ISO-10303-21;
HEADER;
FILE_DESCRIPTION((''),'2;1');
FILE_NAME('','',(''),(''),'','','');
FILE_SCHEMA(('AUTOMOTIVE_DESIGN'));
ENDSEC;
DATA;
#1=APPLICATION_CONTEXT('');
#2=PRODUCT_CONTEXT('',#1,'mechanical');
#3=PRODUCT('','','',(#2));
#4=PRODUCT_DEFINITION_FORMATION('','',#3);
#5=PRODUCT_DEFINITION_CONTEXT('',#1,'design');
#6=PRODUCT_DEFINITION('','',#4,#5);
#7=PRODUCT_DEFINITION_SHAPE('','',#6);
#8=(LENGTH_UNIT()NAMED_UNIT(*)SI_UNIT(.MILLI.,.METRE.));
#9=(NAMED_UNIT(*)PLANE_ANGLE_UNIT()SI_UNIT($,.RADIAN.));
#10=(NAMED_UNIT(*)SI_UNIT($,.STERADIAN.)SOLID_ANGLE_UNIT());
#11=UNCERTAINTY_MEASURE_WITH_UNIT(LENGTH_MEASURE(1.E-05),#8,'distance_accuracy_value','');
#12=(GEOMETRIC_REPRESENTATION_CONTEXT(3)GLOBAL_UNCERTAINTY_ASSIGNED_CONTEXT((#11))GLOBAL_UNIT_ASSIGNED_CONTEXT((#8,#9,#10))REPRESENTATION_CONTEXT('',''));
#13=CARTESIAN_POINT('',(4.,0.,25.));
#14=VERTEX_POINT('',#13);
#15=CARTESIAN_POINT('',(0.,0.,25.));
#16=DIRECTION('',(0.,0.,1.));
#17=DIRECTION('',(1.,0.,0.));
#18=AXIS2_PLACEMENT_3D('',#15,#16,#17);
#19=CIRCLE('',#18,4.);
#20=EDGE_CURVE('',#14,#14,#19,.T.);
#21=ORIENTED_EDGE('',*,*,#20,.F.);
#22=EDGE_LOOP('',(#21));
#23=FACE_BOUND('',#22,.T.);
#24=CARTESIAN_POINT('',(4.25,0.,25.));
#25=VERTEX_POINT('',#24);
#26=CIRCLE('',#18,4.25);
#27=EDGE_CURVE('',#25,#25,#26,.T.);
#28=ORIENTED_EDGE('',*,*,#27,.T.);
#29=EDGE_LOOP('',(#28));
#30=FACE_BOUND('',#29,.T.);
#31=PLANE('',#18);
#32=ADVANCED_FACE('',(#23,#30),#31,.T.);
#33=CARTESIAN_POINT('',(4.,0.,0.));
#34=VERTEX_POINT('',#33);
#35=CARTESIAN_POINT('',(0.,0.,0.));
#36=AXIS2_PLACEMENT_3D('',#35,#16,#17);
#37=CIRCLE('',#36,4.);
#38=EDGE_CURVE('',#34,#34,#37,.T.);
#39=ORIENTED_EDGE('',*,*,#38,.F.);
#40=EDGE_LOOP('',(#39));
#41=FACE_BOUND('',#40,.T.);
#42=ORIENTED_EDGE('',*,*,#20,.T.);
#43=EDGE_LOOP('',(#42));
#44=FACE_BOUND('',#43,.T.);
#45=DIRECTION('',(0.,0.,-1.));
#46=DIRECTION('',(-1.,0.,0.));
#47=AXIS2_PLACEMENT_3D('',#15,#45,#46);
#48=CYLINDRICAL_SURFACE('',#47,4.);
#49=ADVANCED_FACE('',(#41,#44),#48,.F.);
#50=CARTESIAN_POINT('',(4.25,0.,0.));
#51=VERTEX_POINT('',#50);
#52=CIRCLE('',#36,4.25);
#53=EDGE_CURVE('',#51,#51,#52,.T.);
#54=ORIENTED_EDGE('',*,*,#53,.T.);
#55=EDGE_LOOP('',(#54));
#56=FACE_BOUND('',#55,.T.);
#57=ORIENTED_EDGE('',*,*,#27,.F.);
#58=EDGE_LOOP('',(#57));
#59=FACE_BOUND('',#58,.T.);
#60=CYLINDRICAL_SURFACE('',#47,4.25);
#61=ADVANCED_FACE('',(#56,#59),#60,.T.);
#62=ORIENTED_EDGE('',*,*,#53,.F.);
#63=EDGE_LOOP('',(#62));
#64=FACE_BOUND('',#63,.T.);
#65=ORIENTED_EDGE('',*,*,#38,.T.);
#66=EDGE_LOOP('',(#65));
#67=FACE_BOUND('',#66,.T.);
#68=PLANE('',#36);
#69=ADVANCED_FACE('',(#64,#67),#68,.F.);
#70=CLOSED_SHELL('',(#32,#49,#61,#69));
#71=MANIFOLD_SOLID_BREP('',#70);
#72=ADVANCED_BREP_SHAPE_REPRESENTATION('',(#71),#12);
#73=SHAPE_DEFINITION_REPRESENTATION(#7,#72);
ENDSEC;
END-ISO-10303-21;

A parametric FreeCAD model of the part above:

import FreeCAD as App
import Part
import Sketcher
from FreeCAD import Vector
Q = App.Units.Quantity

doc = App.newDocument("Part")
body = doc.addObject("PartDesign::Body", "Body")

# Sketch on XY plane
sketch1 = body.newObject("Sketcher::SketchObject", "Sketch")
sketch1.AttachmentSupport = (doc.getObject("XY_Plane"), [""])
sketch1.MapMode = "FlatFace"
sketch1.addGeometry(Part.Circle(Vector(0, 0, 0), Vector(0, 0, 1), 4.2), False)
sketch1.addGeometry(Part.Circle(Vector(0, 0, 0), Vector(0, 0, 1), 4), False)
sketch1.addConstraint(Sketcher.Constraint("Coincident", 0, 3, -1, 1))
sketch1.addConstraint(Sketcher.Constraint("Coincident", 1, 3, -1, 1))
sketch1.addConstraint(Sketcher.Constraint("Diameter", 1, Q("8 mm")))
sketch1.addConstraint(Sketcher.Constraint("Diameter", 0, Q("8.5 mm")))
pad1 = body.newObject("PartDesign::Pad", "Pad")
pad1.Profile = sketch1
pad1.Length = 25

doc.recompute()
